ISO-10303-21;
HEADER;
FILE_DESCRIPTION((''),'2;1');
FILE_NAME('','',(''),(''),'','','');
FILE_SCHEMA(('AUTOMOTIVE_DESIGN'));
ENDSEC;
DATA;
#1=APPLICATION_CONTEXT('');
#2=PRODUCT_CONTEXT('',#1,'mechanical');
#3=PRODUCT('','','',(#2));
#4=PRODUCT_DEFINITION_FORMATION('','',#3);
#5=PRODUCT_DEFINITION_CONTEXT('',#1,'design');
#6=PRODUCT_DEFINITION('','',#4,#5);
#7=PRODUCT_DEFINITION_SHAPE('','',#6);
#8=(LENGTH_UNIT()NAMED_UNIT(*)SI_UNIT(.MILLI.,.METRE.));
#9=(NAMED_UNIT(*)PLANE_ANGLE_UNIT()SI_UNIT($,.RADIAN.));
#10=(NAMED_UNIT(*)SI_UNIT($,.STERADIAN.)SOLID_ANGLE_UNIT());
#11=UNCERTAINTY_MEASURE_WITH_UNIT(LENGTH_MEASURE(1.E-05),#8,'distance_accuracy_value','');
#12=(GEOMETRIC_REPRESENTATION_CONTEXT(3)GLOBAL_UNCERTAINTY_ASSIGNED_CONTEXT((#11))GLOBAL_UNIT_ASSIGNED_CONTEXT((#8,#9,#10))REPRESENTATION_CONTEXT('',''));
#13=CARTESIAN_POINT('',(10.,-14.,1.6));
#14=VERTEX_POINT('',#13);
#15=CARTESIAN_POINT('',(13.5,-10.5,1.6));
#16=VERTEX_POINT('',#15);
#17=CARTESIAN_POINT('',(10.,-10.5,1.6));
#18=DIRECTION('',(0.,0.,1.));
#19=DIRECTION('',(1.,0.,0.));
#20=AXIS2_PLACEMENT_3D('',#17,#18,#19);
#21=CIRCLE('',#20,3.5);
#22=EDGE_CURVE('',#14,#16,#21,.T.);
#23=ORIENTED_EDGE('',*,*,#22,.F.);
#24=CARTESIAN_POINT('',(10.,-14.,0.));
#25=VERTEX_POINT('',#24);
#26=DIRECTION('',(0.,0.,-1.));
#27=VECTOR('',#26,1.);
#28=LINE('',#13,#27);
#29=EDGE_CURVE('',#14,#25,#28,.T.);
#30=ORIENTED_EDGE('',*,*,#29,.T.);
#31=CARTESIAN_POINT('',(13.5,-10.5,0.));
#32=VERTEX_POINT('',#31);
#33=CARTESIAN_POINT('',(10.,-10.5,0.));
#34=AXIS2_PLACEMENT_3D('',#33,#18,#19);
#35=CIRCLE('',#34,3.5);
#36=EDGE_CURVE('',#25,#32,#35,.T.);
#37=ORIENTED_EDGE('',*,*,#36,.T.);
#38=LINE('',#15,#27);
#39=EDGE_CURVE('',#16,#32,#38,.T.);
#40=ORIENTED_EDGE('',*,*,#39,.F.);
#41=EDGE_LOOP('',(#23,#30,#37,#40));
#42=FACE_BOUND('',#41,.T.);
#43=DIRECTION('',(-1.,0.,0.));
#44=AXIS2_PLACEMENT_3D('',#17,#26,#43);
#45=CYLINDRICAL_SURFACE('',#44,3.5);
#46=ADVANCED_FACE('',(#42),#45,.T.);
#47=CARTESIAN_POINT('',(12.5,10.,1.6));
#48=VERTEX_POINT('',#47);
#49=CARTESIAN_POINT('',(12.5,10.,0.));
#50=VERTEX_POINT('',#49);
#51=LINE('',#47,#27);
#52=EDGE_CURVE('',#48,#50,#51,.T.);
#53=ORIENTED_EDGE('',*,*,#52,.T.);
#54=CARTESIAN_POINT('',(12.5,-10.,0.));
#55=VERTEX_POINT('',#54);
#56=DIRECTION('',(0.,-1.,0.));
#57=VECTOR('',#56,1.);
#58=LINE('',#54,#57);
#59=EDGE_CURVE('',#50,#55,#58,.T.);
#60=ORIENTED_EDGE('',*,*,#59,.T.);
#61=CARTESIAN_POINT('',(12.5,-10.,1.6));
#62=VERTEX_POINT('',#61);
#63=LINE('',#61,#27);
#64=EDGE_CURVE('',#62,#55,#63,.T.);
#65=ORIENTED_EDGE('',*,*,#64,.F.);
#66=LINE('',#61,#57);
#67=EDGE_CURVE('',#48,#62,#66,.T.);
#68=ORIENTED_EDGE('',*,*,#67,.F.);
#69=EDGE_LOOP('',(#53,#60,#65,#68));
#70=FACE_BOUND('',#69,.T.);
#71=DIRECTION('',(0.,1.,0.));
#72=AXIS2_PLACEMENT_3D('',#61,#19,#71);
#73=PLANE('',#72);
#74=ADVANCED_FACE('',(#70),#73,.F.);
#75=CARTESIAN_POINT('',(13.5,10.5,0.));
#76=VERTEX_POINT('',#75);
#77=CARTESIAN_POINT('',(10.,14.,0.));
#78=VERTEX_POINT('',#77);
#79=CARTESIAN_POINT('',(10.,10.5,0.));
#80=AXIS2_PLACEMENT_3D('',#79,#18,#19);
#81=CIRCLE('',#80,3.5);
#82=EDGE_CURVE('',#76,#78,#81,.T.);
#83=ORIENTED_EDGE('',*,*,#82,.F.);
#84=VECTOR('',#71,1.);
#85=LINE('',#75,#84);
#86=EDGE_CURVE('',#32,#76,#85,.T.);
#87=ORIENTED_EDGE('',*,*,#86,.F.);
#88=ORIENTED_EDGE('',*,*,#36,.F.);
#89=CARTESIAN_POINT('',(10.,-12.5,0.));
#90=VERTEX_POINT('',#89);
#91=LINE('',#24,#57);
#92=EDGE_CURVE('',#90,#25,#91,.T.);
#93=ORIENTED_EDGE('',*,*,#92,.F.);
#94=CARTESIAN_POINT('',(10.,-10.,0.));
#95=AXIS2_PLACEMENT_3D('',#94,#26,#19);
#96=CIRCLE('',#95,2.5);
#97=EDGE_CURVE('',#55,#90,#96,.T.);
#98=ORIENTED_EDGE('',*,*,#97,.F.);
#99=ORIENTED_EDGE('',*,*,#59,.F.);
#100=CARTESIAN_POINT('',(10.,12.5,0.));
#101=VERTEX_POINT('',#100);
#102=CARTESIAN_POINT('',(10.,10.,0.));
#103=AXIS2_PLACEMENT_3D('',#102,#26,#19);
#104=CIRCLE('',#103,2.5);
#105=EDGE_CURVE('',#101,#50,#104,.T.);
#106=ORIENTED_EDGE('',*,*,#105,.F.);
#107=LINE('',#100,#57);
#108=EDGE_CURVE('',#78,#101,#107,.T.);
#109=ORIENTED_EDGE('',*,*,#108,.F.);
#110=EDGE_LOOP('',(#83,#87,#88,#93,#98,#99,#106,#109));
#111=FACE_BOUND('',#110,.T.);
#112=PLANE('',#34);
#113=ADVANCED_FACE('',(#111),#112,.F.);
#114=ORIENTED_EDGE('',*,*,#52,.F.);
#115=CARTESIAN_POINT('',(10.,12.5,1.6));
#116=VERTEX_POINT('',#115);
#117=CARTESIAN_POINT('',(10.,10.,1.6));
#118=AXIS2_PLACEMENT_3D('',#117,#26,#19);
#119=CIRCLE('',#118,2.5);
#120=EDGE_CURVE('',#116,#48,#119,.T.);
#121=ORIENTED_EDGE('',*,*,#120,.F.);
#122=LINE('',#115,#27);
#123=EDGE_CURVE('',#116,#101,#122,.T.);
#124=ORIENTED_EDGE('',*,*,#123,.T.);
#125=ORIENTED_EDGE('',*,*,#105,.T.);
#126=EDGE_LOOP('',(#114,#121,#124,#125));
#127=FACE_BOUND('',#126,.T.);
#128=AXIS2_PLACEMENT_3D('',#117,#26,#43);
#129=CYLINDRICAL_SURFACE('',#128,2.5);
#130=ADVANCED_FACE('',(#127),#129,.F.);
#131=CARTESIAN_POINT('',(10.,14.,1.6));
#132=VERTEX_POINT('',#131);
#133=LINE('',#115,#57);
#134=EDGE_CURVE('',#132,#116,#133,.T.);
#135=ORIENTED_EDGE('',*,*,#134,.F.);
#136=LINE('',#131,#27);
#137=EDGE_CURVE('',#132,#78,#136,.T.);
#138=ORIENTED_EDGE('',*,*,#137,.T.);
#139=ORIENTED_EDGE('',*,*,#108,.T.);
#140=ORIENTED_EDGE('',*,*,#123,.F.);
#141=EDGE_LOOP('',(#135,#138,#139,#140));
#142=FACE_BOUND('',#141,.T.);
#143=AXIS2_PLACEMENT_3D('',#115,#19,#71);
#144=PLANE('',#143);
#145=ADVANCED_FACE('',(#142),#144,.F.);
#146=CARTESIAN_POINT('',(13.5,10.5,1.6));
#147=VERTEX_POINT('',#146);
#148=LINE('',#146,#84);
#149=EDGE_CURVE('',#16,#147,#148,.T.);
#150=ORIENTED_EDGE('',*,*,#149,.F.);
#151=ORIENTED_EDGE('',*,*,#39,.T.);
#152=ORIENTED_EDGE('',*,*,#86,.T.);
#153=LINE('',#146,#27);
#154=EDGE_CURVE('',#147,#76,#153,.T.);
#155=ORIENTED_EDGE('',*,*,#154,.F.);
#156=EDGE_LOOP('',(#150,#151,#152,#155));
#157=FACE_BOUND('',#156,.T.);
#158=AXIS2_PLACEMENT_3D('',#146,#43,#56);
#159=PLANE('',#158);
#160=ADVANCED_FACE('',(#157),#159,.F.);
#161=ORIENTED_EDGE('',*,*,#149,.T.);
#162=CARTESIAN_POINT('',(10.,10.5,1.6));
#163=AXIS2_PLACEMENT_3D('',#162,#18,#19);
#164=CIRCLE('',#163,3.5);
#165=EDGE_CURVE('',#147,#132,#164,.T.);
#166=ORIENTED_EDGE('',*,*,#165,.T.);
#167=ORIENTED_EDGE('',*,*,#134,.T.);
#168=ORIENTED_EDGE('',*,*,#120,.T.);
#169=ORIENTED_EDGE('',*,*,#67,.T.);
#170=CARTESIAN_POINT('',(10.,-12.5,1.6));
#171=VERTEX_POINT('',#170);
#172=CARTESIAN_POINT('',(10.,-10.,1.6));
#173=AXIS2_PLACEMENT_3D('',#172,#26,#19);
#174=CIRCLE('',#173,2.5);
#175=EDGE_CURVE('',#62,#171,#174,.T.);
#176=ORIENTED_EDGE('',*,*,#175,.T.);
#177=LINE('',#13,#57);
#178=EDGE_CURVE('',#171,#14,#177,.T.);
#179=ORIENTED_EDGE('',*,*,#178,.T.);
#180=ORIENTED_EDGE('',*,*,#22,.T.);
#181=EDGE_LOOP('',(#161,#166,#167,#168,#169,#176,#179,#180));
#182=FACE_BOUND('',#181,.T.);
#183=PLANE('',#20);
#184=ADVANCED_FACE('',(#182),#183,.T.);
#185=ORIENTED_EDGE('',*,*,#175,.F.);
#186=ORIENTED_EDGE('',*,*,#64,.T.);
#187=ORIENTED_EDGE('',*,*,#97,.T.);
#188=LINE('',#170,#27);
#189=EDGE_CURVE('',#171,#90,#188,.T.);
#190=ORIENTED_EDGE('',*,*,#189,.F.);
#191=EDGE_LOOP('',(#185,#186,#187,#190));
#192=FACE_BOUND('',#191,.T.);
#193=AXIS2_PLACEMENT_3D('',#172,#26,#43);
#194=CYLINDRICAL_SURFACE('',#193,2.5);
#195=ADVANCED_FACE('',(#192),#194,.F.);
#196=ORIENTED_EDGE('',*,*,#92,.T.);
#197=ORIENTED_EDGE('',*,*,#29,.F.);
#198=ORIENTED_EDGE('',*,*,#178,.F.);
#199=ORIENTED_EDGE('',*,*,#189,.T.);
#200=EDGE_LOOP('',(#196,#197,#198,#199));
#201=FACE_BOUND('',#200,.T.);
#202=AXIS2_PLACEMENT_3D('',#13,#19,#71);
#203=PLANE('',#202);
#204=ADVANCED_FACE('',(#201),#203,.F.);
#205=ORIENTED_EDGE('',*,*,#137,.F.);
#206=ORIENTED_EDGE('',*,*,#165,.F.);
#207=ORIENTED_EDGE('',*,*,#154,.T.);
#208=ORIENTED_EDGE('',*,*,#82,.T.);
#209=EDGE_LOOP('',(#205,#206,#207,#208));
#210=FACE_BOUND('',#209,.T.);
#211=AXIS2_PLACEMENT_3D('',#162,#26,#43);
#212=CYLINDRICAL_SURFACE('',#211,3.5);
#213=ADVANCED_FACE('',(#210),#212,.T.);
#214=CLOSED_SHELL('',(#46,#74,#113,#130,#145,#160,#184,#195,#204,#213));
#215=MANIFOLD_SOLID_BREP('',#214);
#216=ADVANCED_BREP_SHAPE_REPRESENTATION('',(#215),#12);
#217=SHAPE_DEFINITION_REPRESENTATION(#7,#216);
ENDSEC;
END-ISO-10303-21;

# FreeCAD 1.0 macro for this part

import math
import FreeCAD as App
import Part
import Sketcher

doc = App.newDocument("Part")
body = doc.addObject("PartDesign::Body", "Body")

# Sketch on XY plane
sketch1 = body.newObject("Sketcher::SketchObject", "Sketch")
sketch1.AttachmentSupport = (doc.getObject("XY_Plane"), [""])
sketch1.MapMode = "FlatFace"
sketch1.addGeometry([
    Part.LineSegment(App.Vector(13.5, -10.5, 0), App.Vector(13.5, 10.5, 0)),  # 0
    Part.ArcOfCircle(Part.Circle(App.Vector(10, 10.5, 0), App.Vector(0, 0, 1), 3.5), math.radians(0), math.radians(90)),  # 1
    Part.LineSegment(App.Vector(10, 14, 0), App.Vector(10, 12.5, 0)),  # 2
    Part.ArcOfCircle(Part.Circle(App.Vector(10, 10, 0), App.Vector(0, 0, 1), 2.5), math.radians(0), math.radians(90)),  # 3
    Part.LineSegment(App.Vector(12.5, 10, 0), App.Vector(12.5, -10, 0)),  # 4
    Part.ArcOfCircle(Part.Circle(App.Vector(10, -10, 0), App.Vector(0, 0, 1), 2.5), math.radians(-90), math.radians(0)),  # 5
    Part.LineSegment(App.Vector(10, -12.5, 0), App.Vector(10, -14, 0)),  # 6
    Part.ArcOfCircle(Part.Circle(App.Vector(10, -10.5, 0), App.Vector(0, 0, 1), 3.5), math.radians(-90), math.radians(0)),  # 7
], False)
sketch1.addConstraint([
    Sketcher.Constraint("Tangent", 0, 2, 1, 1),
    Sketcher.Constraint("Coincident", 1, 2, 2, 1),
    Sketcher.Constraint("Coincident", 2, 2, 3, 2),
    Sketcher.Constraint("Tangent", 3, 1, 4, 1),
    Sketcher.Constraint("Tangent", 4, 2, 5, 2),
    Sketcher.Constraint("Coincident", 5, 1, 6, 1),
    Sketcher.Constraint("Coincident", 6, 2, 7, 1),
    Sketcher.Constraint("Tangent", 7, 2, 0, 1),
    Sketcher.Constraint("Vertical", 0),
    Sketcher.Constraint("Vertical", 2),
    Sketcher.Constraint("Vertical", 4),
    Sketcher.Constraint("Vertical", 6),
    Sketcher.Constraint("Equal", 3, 5),
    Sketcher.Constraint("Equal", 1, 7),
    Sketcher.Constraint("Symmetric", 2, 2, 5, 1, -1),
    Sketcher.Constraint("Vertical", 1, 3, 3, 3),
    Sketcher.Constraint("Vertical", 7, 3, 1, 2),
    Sketcher.Constraint("Equal", 2, 6),
    Sketcher.Constraint("Radius", 1, 3.5),
    Sketcher.Constraint("Radius", 3, 2.5),
    Sketcher.Constraint("DistanceY", 0, 1, 0, 2, 21.0),
    Sketcher.Constraint("DistanceY", 4, 2, 4, 1, 20.0),
    Sketcher.Constraint("DistanceX", -1, 1, 1, 3, 10.0),
])
pad1 = body.newObject("PartDesign::Pad", "Pad")
pad1.Profile = sketch1
pad1.Length = 1.6

doc.recompute()
